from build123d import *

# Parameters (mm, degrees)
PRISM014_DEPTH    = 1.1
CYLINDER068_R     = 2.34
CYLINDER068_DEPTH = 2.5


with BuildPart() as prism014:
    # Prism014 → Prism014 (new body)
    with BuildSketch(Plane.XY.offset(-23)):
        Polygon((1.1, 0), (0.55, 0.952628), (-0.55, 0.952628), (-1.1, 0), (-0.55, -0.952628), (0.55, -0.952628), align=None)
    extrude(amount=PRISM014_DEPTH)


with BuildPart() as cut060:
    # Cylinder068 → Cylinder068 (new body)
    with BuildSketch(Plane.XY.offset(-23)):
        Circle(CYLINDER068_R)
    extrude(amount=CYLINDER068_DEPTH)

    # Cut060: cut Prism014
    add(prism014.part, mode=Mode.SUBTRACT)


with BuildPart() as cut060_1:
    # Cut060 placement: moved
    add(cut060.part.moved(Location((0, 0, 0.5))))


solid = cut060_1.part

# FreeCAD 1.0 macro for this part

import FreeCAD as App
import Part
import Sketcher

V = App.Vector
Q = App.Units.Quantity


def add_polygon(sketch, points):
    """Adds a closed chain of lines whose ends are joined by coincident constraints."""
    first, n = sketch.GeometryCount, len(points)
    for a, b in zip(points, points[1:] + points[:1]):
        sketch.addGeometry(Part.LineSegment(App.Vector(*a, 0), App.Vector(*b, 0)), False)
    for i in range(n):
        sketch.addConstraint(Sketcher.Constraint("Coincident", first + i, 2, first + (i + 1) % n, 1))

doc = App.newDocument("Part")
body = doc.addObject("PartDesign::Body", "Body")

sketch1 = body.newObject("Sketcher::SketchObject", "Sketch")
sketch1.AttachmentSupport = (doc.getObject("XY_Plane"), [""])
sketch1.MapMode = "FlatFace"
sketch1.AttachmentOffset = App.Placement(V(0, 0, -23), App.Rotation())
add_polygon(sketch1, [(1.1, 0), (0.55, 0.952628), (-0.55, 0.952628), (-1.1, 0), (-0.55, -0.952628), (0.55, -0.952628)])
sketch1.addConstraint(Sketcher.Constraint("Horizontal", 1))
sketch1.addConstraint(Sketcher.Constraint("Horizontal", 4))
sketch1.addConstraint(Sketcher.Constraint("Symmetric", 0, 2, 3, 2, -1, 1))
sketch1.addConstraint(Sketcher.Constraint("Symmetric", 2, 2, 5, 2, -1, 1))
sketch1.addConstraint(Sketcher.Constraint("PointOnObject", 2, 2, -1))
sketch1.addConstraint(Sketcher.Constraint("Parallel", 2, 5))
sketch1.addConstraint(Sketcher.Constraint("Vertical", 1, 2, 3, 2))
sketch1.addConstraint(Sketcher.Constraint("Angle", 0, Q("119.999999 deg")))
sketch1.addConstraint(Sketcher.Constraint("DistanceX", 1, 2, 1, 1, Q("1.1 mm")))
sketch1.addConstraint(Sketcher.Constraint("Distance", 0, Q("1.1 mm")))
pad1 = body.newObject("PartDesign::Pad", "Pad")
pad1.Profile = sketch1
pad1.Length = 1.1
body2 = doc.addObject("PartDesign::Body", "Body001")

sketch2 = body2.newObject("Sketcher::SketchObject", "Sketch001")
sketch2.AttachmentSupport = (doc.getObject("XY_Plane001"), [""])
sketch2.MapMode = "FlatFace"
sketch2.AttachmentOffset = App.Placement(V(0, 0, -23), App.Rotation())
sketch2.addGeometry(Part.Circle(V(0, 0, 0), V(0, 0, 1), 2.34), False)
sketch2.addConstraint(Sketcher.Constraint("Coincident", 0, 3, -1, 1))
sketch2.addConstraint(Sketcher.Constraint("Diameter", 0, Q("4.68 mm")))
pad2 = body2.newObject("PartDesign::Pad", "Pad001")
pad2.Profile = sketch2
pad2.Length = 2.5
doc.recompute()

boolean = body2.newObject("PartDesign::Boolean", "Boolean")
boolean.Type = "Cut"
boolean.addObjects([body])
body3 = doc.addObject("PartDesign::Body", "Body002")
doc.recompute()

body2.Placement = App.Placement(V(0, 0, 0.5), App.Rotation(V(0, 0, 1), 0))
boolean2 = body3.newObject("PartDesign::Boolean", "Boolean001")
boolean2.Type = "Fuse"
boolean2.addObjects([body2])

doc.recompute()
